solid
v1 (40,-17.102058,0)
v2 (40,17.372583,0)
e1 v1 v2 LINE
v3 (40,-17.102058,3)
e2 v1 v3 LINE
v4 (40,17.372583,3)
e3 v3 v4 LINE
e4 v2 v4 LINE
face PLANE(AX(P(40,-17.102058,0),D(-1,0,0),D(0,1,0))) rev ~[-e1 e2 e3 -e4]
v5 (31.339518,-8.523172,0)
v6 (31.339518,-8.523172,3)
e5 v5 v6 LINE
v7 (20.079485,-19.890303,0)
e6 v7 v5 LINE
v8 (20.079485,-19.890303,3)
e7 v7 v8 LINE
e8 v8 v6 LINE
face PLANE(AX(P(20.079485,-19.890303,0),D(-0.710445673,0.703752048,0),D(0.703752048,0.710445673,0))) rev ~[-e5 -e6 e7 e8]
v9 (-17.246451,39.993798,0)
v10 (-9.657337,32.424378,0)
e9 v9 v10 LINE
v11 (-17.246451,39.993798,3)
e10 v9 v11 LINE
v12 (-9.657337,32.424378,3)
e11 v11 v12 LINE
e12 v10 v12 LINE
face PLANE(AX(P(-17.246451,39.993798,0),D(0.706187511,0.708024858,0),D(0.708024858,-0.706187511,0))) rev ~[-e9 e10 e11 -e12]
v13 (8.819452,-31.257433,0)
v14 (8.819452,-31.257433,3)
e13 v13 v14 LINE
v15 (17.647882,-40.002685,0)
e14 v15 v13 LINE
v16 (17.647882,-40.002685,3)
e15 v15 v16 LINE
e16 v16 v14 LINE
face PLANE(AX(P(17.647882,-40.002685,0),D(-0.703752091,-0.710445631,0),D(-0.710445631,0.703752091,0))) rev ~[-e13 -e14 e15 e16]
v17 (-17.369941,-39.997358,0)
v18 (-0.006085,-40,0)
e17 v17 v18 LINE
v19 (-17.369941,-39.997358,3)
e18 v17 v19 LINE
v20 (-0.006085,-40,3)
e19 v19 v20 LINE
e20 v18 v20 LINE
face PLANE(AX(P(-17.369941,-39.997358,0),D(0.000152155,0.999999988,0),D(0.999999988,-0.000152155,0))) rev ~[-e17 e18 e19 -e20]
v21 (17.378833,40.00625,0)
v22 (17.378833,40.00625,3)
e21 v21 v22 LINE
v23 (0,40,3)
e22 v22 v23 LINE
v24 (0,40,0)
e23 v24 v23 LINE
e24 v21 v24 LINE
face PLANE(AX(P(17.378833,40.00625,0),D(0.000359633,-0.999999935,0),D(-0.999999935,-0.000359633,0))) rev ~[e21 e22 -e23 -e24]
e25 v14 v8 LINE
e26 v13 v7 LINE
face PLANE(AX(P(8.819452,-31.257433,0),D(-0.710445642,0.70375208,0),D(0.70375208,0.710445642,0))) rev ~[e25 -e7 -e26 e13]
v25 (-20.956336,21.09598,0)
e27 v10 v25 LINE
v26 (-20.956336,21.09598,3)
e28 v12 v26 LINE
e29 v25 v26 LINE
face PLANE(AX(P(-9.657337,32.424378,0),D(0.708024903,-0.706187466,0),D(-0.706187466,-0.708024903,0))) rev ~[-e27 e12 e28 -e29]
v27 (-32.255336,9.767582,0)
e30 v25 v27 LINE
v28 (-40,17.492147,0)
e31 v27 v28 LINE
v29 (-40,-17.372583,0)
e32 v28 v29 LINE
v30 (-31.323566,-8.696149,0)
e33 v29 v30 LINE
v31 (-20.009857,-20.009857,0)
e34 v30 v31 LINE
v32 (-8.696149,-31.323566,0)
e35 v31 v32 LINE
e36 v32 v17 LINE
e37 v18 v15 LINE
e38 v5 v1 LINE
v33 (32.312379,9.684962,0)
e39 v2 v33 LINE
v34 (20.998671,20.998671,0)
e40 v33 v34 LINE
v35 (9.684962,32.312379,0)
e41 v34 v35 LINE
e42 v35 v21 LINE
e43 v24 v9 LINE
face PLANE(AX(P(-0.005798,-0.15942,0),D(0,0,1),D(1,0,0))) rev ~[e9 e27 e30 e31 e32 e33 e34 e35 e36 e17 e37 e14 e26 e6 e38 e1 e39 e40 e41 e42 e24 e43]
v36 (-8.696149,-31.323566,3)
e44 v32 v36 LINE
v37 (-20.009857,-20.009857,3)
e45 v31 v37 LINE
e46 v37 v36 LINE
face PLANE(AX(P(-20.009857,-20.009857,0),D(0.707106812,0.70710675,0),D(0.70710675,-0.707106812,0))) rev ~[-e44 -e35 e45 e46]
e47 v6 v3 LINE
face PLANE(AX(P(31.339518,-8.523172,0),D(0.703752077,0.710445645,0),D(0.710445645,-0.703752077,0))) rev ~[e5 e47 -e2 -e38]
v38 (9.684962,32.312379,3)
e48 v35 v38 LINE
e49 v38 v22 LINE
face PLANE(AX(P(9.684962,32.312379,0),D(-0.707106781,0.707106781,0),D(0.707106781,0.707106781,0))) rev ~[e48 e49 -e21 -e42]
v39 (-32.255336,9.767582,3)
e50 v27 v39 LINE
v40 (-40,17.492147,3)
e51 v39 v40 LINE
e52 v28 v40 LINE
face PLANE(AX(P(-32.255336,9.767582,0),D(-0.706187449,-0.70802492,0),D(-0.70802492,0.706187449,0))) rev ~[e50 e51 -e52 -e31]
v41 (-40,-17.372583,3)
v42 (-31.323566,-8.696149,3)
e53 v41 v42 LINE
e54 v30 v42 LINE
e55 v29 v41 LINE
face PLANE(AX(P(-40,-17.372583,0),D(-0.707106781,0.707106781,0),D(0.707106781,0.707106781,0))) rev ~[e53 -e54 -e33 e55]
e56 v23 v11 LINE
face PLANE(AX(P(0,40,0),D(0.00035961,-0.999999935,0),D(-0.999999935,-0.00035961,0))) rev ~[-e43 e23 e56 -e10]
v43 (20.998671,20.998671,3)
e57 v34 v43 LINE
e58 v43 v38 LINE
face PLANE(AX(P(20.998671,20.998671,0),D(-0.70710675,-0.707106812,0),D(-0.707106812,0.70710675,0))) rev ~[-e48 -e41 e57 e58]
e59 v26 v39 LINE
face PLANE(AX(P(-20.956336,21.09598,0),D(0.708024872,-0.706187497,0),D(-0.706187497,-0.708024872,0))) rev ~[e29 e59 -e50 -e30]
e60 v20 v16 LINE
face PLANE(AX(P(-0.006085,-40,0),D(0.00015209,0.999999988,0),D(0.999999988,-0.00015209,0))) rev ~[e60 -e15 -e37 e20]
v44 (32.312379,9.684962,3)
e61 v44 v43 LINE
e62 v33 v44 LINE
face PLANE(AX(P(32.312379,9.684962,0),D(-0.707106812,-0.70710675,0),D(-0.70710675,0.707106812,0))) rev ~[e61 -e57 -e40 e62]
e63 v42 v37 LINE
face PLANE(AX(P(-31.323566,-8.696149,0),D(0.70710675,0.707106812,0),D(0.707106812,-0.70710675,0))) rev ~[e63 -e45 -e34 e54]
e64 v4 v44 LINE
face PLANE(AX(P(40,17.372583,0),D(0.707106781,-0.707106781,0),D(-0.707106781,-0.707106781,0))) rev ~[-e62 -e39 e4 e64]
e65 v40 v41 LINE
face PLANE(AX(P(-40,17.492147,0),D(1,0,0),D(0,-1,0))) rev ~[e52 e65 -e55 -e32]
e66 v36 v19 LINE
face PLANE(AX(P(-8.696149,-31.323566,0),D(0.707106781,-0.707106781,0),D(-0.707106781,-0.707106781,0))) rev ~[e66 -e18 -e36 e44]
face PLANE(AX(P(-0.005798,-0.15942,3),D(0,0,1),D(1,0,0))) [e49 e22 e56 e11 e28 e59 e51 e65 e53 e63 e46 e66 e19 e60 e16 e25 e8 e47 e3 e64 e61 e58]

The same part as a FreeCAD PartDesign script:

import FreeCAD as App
import Part
import Sketcher

V = App.Vector
Q = App.Units.Quantity

doc = App.newDocument("Part")
body = doc.addObject("PartDesign::Body", "Body")

sketch1 = doc.addObject("Sketcher::SketchObject", "Sketch")
body.addObject(sketch1)
sketch1.AttachmentSupport = (doc.XY_Plane, [""])
sketch1.MapMode = "FlatFace"
sketch1.addGeometry([
    Part.LineSegment(V(40, 17.372583, 0), V(32.312379, 9.684962, 0)),
    Part.LineSegment(V(32.312379, 9.684962, 0), V(20.998671, 20.998671, 0)),
    Part.LineSegment(V(20.998671, 20.998671, 0), V(9.684962, 32.312379, 0)),
    Part.LineSegment(V(9.684962, 32.312379, 0), V(17.378833, 40.00625, 0)),
    Part.LineSegment(V(17.378833, 40.00625, 0), V(0, 40, 0)),
    Part.LineSegment(V(0, 40, 0), V(-17.246451, 39.993798, 0)),
    Part.LineSegment(V(-17.246451, 39.993798, 0), V(-9.657337, 32.424378, 0)),
    Part.LineSegment(V(-9.657337, 32.424378, 0), V(-20.956336, 21.09598, 0)),
    Part.LineSegment(V(-20.956336, 21.09598, 0), V(-32.255336, 9.767582, 0)),
    Part.LineSegment(V(-32.255336, 9.767582, 0), V(-40, 17.492147, 0)),
    Part.LineSegment(V(-40, 17.492147, 0), V(-40, -17.372583, 0)),
    Part.LineSegment(V(-40, -17.372583, 0), V(-31.323566, -8.696149, 0)),
    Part.LineSegment(V(-31.323566, -8.696149, 0), V(-20.009857, -20.009857, 0)),
    Part.LineSegment(V(-20.009857, -20.009857, 0), V(-8.696149, -31.323566, 0)),
    Part.LineSegment(V(-8.696149, -31.323566, 0), V(-17.369941, -39.997358, 0)),
    Part.LineSegment(V(-17.369941, -39.997358, 0), V(-0.006085, -40, 0)),
    Part.LineSegment(V(-0.006085, -40, 0), V(17.647882, -40.002685, 0)),
    Part.LineSegment(V(17.647882, -40.002685, 0), V(8.819452, -31.257433, 0)),
    Part.LineSegment(V(8.819452, -31.257433, 0), V(20.079485, -19.890303, 0)),
    Part.LineSegment(V(20.079485, -19.890303, 0), V(31.339518, -8.523172, 0)),
    Part.LineSegment(V(31.339518, -8.523172, 0), V(40, -17.102058, 0)),
    Part.LineSegment(V(40, -17.102058, 0), V(40, 17.372583, 0)),
], False)
sketch1.addConstraint([
    Sketcher.Constraint("Coincident", 0, 2, 1, 1),
    Sketcher.Constraint("Coincident", 1, 2, 2, 1),
    Sketcher.Constraint("Coincident", 2, 2, 3, 1),
    Sketcher.Constraint("Coincident", 3, 2, 4, 1),
    Sketcher.Constraint("Coincident", 4, 2, 5, 1),
    Sketcher.Constraint("Coincident", 5, 2, 6, 1),
    Sketcher.Constraint("Coincident", 6, 2, 7, 1),
    Sketcher.Constraint("Coincident", 7, 2, 8, 1),
    Sketcher.Constraint("Coincident", 8, 2, 9, 1),
    Sketcher.Constraint("Coincident", 9, 2, 10, 1),
    Sketcher.Constraint("Coincident", 10, 2, 11, 1),
    Sketcher.Constraint("Coincident", 11, 2, 12, 1),
    Sketcher.Constraint("Coincident", 12, 2, 13, 1),
    Sketcher.Constraint("Coincident", 13, 2, 14, 1),
    Sketcher.Constraint("Coincident", 14, 2, 15, 1),
    Sketcher.Constraint("Coincident", 15, 2, 16, 1),
    Sketcher.Constraint("Coincident", 16, 2, 17, 1),
    Sketcher.Constraint("Coincident", 17, 2, 18, 1),
    Sketcher.Constraint("Coincident", 18, 2, 19, 1),
    Sketcher.Constraint("Coincident", 19, 2, 20, 1),
    Sketcher.Constraint("Coincident", 20, 2, 21, 1),
    Sketcher.Constraint("Coincident", 21, 2, 0, 1),
    Sketcher.Constraint("Vertical", 10),
    Sketcher.Constraint("Vertical", 21),
    Sketcher.Constraint("PointOnObject", 4, 2, -2),
    Sketcher.Constraint("Distance", 1, Q("16 mm")),
    Sketcher.Constraint("Distance", 2, Q("16 mm")),
    Sketcher.Constraint("Distance", 7, Q("15.999999 mm")),
    Sketcher.Constraint("Distance", 8, Q("16 mm")),
    Sketcher.Constraint("Distance", 12, Q("16 mm")),
    Sketcher.Constraint("Distance", 13, Q("16 mm")),
    Sketcher.Constraint("Distance", 18, Q("16 mm")),
    Sketcher.Constraint("Distance", 19, Q("16 mm")),
    Sketcher.Constraint("DistanceY", -1, 1, 4, 2, Q("40 mm")),
    Sketcher.Constraint("DistanceX", 9, 2, -1, 1, Q("40 mm")),
    Sketcher.Constraint("DistanceY", 15, 2, -1, 1, Q("40 mm")),
    Sketcher.Constraint("DistanceX", -1, 1, 20, 2, Q("40 mm")),
    Sketcher.Constraint("DistanceY", 2, 2, 6, 2, Q("0.111999 mm")),
    Sketcher.Constraint("DistanceX", 7, 2, 6, 2, Q("11.298999 mm")),
    Sketcher.Constraint("DistanceX", 8, 2, 7, 2, Q("11.299 mm")),
    Sketcher.Constraint("DistanceY", 10, 2, 10, 1, Q("34.86473 mm")),
    Sketcher.Constraint("DistanceY", 21, 1, 21, 2, Q("34.474641 mm")),
    Sketcher.Constraint("DistanceX", 6, 2, 2, 2, Q("19.342299 mm")),
    Sketcher.Constraint("DistanceY", 14, 2, 12, 2, Q("19.987501 mm")),
    Sketcher.Constraint("DistanceX", 13, 2, 17, 2, Q("17.515601 mm")),
    Sketcher.Constraint("Distance", 6, Q("10.718711 mm")),
    Sketcher.Constraint("Distance", 11, Q("12.270331 mm")),
    Sketcher.Constraint("Distance", 17, Q("12.426609 mm")),
    Sketcher.Constraint("Distance", 20, Q("12.190211 mm")),
    Sketcher.Constraint("DistanceX", -1, 1, 0, 2, Q("32.312379 mm")),
    Sketcher.Constraint("DistanceX", -1, 1, 1, 2, Q("20.998671 mm")),
    Sketcher.Constraint("DistanceY", -1, 1, 1, 2, Q("20.998671 mm")),
    Sketcher.Constraint("DistanceY", -1, 1, 2, 2, Q("32.312379 mm")),
    Sketcher.Constraint("DistanceY", -1, 1, 3, 2, Q("40.00625 mm")),
    Sketcher.Constraint("DistanceX", 5, 2, -1, 1, Q("17.246451 mm")),
    Sketcher.Constraint("DistanceY", 11, 2, -1, 1, Q("8.696149 mm")),
    Sketcher.Constraint("DistanceX", 13, 2, -1, 1, Q("8.696149 mm")),
    Sketcher.Constraint("DistanceX", 14, 2, -1, 1, Q("17.369941 mm")),
    Sketcher.Constraint("DistanceX", -1, 1, 16, 2, Q("17.647882 mm")),
    Sketcher.Constraint("DistanceX", -1, 1, 19, 2, Q("31.339518 mm")),
    Sketcher.Constraint("DistanceX", 2, 2, 3, 2, Q("7.693871 mm")),
    Sketcher.Constraint("DistanceY", 9, 2, 5, 2, Q("22.501651 mm")),
    Sketcher.Constraint("DistanceX", 11, 2, 12, 2, Q("11.313709 mm")),
    Sketcher.Constraint("DistanceX", 11, 2, 15, 2, Q("31.317481 mm")),
    Sketcher.Constraint("DistanceY", 16, 2, 13, 2, Q("8.679119 mm")),
    Sketcher.Constraint("DistanceY", 17, 2, 18, 2, Q("11.36713 mm")),
])
pad1 = doc.addObject("PartDesign::Pad", "Pad")
body.addObject(pad1)
pad1.Profile = sketch1
pad1.Length = 3

doc.recompute()
